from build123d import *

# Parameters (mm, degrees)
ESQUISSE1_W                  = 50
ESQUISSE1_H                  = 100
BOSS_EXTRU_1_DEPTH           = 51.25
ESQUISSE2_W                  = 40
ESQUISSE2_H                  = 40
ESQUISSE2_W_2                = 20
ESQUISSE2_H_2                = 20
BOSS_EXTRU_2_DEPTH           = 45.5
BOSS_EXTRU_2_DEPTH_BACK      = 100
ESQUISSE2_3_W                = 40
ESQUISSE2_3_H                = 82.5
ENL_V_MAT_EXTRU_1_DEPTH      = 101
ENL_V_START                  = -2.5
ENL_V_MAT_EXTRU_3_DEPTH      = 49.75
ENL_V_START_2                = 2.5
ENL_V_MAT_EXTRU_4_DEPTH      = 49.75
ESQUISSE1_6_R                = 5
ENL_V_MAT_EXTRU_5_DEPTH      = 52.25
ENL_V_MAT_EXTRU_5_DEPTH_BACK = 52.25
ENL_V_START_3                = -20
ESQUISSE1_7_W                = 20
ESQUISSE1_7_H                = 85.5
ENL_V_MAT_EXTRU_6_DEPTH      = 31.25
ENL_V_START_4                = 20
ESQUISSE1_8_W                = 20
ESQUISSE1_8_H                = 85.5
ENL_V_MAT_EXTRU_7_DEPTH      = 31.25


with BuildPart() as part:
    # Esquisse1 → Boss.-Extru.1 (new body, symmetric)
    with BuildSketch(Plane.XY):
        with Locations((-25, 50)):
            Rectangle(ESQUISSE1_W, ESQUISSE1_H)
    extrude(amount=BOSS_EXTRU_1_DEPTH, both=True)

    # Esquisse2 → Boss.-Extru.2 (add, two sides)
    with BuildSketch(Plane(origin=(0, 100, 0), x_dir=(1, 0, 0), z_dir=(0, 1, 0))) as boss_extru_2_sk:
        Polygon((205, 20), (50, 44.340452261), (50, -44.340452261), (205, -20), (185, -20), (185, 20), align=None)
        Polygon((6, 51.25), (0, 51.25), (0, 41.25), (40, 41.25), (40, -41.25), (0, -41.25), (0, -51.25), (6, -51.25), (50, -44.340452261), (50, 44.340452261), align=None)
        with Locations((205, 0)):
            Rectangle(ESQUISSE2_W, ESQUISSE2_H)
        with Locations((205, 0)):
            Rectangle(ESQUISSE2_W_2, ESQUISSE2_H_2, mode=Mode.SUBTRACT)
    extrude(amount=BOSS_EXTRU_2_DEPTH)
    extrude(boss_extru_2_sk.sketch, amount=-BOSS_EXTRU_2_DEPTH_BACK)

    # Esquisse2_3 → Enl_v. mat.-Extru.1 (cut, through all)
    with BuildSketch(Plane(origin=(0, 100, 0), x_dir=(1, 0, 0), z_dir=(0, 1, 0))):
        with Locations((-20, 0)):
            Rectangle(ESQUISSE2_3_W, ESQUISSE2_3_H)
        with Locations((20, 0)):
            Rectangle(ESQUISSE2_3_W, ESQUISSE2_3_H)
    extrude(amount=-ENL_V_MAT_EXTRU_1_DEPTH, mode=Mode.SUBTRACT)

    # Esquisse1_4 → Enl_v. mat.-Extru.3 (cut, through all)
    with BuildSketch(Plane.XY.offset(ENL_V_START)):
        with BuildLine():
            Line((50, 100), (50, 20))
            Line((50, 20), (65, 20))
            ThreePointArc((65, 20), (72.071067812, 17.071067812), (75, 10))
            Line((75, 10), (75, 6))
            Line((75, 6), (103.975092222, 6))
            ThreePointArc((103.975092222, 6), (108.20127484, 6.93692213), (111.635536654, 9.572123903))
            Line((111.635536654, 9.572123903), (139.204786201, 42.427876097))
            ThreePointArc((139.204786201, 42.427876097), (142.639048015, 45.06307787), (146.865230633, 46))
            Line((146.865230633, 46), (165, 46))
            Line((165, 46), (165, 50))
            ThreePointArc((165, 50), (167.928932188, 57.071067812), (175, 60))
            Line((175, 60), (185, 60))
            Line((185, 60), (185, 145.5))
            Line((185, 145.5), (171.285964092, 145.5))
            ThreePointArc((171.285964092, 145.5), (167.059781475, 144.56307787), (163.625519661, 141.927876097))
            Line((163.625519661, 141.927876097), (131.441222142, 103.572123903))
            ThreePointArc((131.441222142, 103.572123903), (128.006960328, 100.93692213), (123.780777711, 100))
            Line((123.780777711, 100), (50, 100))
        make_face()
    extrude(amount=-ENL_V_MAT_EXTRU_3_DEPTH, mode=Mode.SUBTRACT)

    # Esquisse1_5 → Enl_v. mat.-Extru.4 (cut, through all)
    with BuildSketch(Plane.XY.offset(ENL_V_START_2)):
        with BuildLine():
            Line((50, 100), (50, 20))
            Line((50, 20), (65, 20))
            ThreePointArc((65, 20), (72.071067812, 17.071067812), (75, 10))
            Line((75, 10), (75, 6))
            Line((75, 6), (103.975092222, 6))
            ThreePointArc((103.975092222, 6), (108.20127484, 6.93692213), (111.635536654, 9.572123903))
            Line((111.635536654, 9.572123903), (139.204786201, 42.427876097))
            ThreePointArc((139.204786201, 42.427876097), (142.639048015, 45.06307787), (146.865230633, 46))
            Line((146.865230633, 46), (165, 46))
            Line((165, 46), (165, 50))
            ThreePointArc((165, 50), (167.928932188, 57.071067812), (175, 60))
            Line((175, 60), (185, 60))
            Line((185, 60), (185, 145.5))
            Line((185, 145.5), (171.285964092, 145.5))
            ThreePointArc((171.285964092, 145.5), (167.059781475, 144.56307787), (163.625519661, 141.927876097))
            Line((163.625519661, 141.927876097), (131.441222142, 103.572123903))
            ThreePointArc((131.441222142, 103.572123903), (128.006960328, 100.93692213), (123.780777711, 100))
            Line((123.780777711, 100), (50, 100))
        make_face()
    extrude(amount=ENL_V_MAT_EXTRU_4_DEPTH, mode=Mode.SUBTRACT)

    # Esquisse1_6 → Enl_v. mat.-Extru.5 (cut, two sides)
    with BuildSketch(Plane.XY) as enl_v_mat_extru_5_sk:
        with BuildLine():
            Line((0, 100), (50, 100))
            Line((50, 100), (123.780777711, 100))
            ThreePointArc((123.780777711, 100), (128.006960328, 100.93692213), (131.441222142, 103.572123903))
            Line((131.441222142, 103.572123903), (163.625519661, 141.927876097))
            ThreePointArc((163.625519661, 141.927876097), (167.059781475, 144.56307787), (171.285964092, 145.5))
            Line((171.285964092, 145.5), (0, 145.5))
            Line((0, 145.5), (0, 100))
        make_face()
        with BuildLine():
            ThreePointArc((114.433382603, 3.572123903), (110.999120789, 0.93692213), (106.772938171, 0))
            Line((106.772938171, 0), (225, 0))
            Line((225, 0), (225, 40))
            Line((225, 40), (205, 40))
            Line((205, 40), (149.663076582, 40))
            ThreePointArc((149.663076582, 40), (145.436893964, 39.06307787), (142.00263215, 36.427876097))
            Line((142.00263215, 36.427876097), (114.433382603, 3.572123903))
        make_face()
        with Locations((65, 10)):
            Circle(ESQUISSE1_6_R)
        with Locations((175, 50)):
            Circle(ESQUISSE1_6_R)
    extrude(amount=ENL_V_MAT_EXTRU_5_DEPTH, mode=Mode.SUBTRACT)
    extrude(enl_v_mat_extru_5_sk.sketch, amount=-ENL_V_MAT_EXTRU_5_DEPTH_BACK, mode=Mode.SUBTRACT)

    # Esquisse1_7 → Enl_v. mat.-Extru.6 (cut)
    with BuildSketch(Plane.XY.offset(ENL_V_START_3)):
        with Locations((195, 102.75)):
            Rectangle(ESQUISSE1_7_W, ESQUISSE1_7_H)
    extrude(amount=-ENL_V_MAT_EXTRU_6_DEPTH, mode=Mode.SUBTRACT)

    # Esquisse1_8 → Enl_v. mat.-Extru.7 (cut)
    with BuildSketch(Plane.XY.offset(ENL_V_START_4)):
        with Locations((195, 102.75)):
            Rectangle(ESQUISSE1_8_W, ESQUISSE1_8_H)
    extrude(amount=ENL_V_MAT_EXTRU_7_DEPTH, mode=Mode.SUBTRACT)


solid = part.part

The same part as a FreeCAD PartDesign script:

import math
import FreeCAD as App
import Part
import Sketcher
Q = App.Units.Quantity


def add_polygon(sketch, points):
    """Adds a closed chain of lines whose ends are joined by coincident constraints."""
    first, n = sketch.GeometryCount, len(points)
    for a, b in zip(points, points[1:] + points[:1]):
        sketch.addGeometry(Part.LineSegment(App.Vector(*a, 0), App.Vector(*b, 0)), False)
    for i in range(n):
        sketch.addConstraint(Sketcher.Constraint("Coincident", first + i, 2, first + (i + 1) % n, 1))

doc = App.newDocument("Part")
params = doc.addObject("Spreadsheet::Sheet", "Params")
for row, (alias, value) in enumerate([
    ("sketch1_width", "50 mm"),
    ("sketch1_height", "100 mm"),
    ("pad1_length", "102.5 mm"),
    ("sketch2_width", "6 mm"),
    ("sketch2_width2", "40 mm"),
    ("sketch2_width3", "20 mm"),
    ("sketch2_height", "10 mm"),
    ("sketch2_height2", "82.5 mm"),
    ("pad2_length", "45.5 mm"),
    ("pad2_length2", "100 mm"),
    ("sketch3_width", "80 mm"),
    ("sketch3_height", "82.5 mm"),
    ("sketch4_radius", "10 mm"),
    ("sketch4_width", "15 mm"),
    ("sketch4_width2", "10 mm"),
    ("sketch4_height", "80 mm"),
    ("sketch4_height2", "4 mm"),
    ("sketch5_radius", "10 mm"),
    ("sketch5_width", "15 mm"),
    ("sketch5_width2", "10 mm"),
    ("sketch5_height", "80 mm"),
    ("sketch5_height2", "4 mm"),
    ("sketch6_diameter", "10 mm"),
    ("sketch6_radius", "10 mm"),
    ("sketch6_height", "40 mm"),
    ("sketch6_height2", "45.5 mm"),
    ("sketch7_width", "20 mm"),
    ("sketch7_height", "85.5 mm"),
    ("pocket5_length", "31.25 mm"),
    ("sketch8_width", "20 mm"),
    ("sketch8_height", "85.5 mm"),
    ("pocket6_length", "31.25 mm"),
], start=1):
    params.set(f"A{row}", alias)
    params.set(f"B{row}", "=" + value)
    params.setAlias(f"B{row}", alias)

body = doc.addObject("PartDesign::Body", "Body")

sketch1 = body.newObject("Sketcher::SketchObject", "Sketch")
sketch1.AttachmentSupport = (doc.getObject("XY_Plane"), [""])
sketch1.MapMode = "FlatFace"
add_polygon(sketch1, [(-50, 100), (-50, 0), (0, 0), (0, 100)])
sketch1.addConstraint([
    Sketcher.Constraint("Vertical", 0),
    Sketcher.Constraint("Horizontal", 1),
    Sketcher.Constraint("Vertical", 2),
    Sketcher.Constraint("Horizontal", 3),
    Sketcher.Constraint("Coincident", 1, 2, -1, 1),
    Sketcher.Constraint("DistanceX", 1, 1, 1, 2, 50.0),
    Sketcher.Constraint("DistanceY", 0, 2, 0, 1, 100.0),
])
sketch1.setExpression("Constraints[9]", "Params.sketch1_width")
sketch1.setExpression("Constraints[10]", "Params.sketch1_height")
pad1 = body.newObject("PartDesign::Pad", "Pad")
pad1.Profile = sketch1
pad1.setExpression("Length", "Params.pad1_length")
pad1.Midplane = True

sketch2 = body.newObject("Sketcher::SketchObject", "Sketch001")
sketch2.AttachmentSupport = (doc.getObject("XZ_Plane"), [""])
sketch2.MapMode = "FlatFace"
sketch2.AttachmentOffset = App.Placement(App.Vector(0, 0, -100), App.Rotation())
add_polygon(sketch2, [(205, -20), (50, -44), (6, -51), (0, -51), (0, -41), (40, -41), (40, 41), (0, 41), (0, 51), (6, 51), (50, 44), (205, 20), (225, 20), (225, -20)])
add_polygon(sketch2, [(215, 10), (195, 10), (195, -10), (215, -10)])
sketch2.addConstraint([
    Sketcher.Constraint("Horizontal", 2),
    Sketcher.Constraint("Vertical", 3),
    Sketcher.Constraint("Horizontal", 4),
    Sketcher.Constraint("Vertical", 5),
    Sketcher.Constraint("Horizontal", 6),
    Sketcher.Constraint("Vertical", 7),
    Sketcher.Constraint("Horizontal", 8),
    Sketcher.Constraint("Horizontal", 11),
    Sketcher.Constraint("Vertical", 12),
    Sketcher.Constraint("Horizontal", 13),
    Sketcher.Constraint("Horizontal", 14),
    Sketcher.Constraint("Vertical", 15),
    Sketcher.Constraint("Horizontal", 16),
    Sketcher.Constraint("Vertical", 17),
    Sketcher.Constraint("Symmetric", 3, 2, 6, 2, -1, 1),
    Sketcher.Constraint("Symmetric", 2, 2, 7, 2, -1),
    Sketcher.Constraint("Symmetric", 0, 2, 9, 2, -1),
    Sketcher.Constraint("Symmetric", 10, 2, 13, 2, -1),
    Sketcher.Constraint("Parallel", 0, 1),
    Sketcher.Constraint("Parallel", 9, 10),
    Sketcher.Constraint("Equal", 13, 14),
    Sketcher.Constraint("Equal", 6, 12),
    Sketcher.Constraint("Equal", 16, 15),
    Sketcher.Constraint("DistanceX", 2, 2, 2, 1, 6.0),
    Sketcher.Constraint("DistanceX", 4, 1, 4, 2, 40.0),
    Sketcher.Constraint("DistanceX", 11, 1, 11, 2, 20.0),
    Sketcher.Constraint("DistanceY", 3, 1, 3, 2, 10.0),
    Sketcher.Constraint("DistanceY", 5, 1, 5, 2, 82.5),
    Sketcher.Constraint("DistanceX", -1, 1, 0, 2, 50.0),
    Sketcher.Constraint("DistanceX", -1, 1, 10, 2, 205.0),
    Sketcher.Constraint("DistanceX", -1, 1, 14, 2, 195.0),
    Sketcher.Constraint("DistanceY", -1, 1, 14, 2, 10.0),
])
sketch2.setExpression("Constraints[41]", "Params.sketch2_width")
sketch2.setExpression("Constraints[42]", "Params.sketch2_width2")
sketch2.setExpression("Constraints[43]", "Params.sketch2_width3")
sketch2.setExpression("Constraints[44]", "Params.sketch2_height")
sketch2.setExpression("Constraints[45]", "Params.sketch2_height2")
pad2 = body.newObject("PartDesign::Pad", "Pad001")
pad2.Profile = sketch2
pad2.Type = "TwoLengths"
pad2.setExpression("Length", "Params.pad2_length")
pad2.setExpression("Length2", "Params.pad2_length2")
pad2.Reversed = True

sketch3 = body.newObject("Sketcher::SketchObject", "Sketch002")
sketch3.AttachmentSupport = (doc.getObject("XZ_Plane"), [""])
sketch3.MapMode = "FlatFace"
sketch3.AttachmentOffset = App.Placement(App.Vector(0, 0, -100), App.Rotation())
add_polygon(sketch3, [(-40, -41), (-40, 41), (40, 41), (40, -41)])
sketch3.addConstraint([
    Sketcher.Constraint("Vertical", 0),
    Sketcher.Constraint("Horizontal", 1),
    Sketcher.Constraint("Vertical", 2),
    Sketcher.Constraint("Horizontal", 3),
    Sketcher.Constraint("Symmetric", 0, 2, 2, 2, -1, 1),
    Sketcher.Constraint("DistanceX", 1, 1, 1, 2, 80.0),
    Sketcher.Constraint("DistanceY", 0, 1, 0, 2, 82.5),
])
sketch3.setExpression("Constraints[9]", "Params.sketch3_width")
sketch3.setExpression("Constraints[10]", "Params.sketch3_height")
pocket1 = body.newObject("PartDesign::Pocket", "Pocket")
pocket1.Profile = sketch3
pocket1.Type = "ThroughAll"
pocket1.Reversed = True

sketch4 = body.newObject("Sketcher::SketchObject", "Sketch003")
sketch4.AttachmentSupport = (doc.getObject("XY_Plane"), [""])
sketch4.MapMode = "FlatFace"
sketch4.AttachmentOffset = App.Placement(App.Vector(0, 0, -2.5), App.Rotation())
sketch4.addGeometry([
    Part.LineSegment(App.Vector(50, 100, 0), App.Vector(50, 20, 0)),
    Part.LineSegment(App.Vector(50, 20, 0), App.Vector(65, 20, 0)),
    Part.ArcOfCircle(Part.Circle(App.Vector(65, 10, 0), App.Vector(0, 0, 1), 10), math.radians(0), math.radians(90)),
    Part.LineSegment(App.Vector(75, 10, 0), App.Vector(75, 6, 0)),
    Part.LineSegment(App.Vector(75, 6, 0), App.Vector(104, 6, 0)),
    Part.ArcOfCircle(Part.Circle(App.Vector(104, 16, 0), App.Vector(0, 0, 1), 10), math.radians(-90), math.radians(-40)),
    Part.LineSegment(App.Vector(111.6, 9.6, 0), App.Vector(139.2, 42.4, 0)),
    Part.ArcOfCircle(Part.Circle(App.Vector(146.9, 36, 0), App.Vector(0, 0, 1), 10), math.radians(90), math.radians(140)),
    Part.LineSegment(App.Vector(146.9, 46, 0), App.Vector(165, 46, 0)),
    Part.LineSegment(App.Vector(165, 46, 0), App.Vector(165, 50, 0)),
    Part.ArcOfCircle(Part.Circle(App.Vector(175, 50, 0), App.Vector(0, 0, 1), 10), math.radians(90), math.radians(180)),
    Part.LineSegment(App.Vector(175, 60, 0), App.Vector(185, 60, 0)),
    Part.LineSegment(App.Vector(185, 60, 0), App.Vector(185, 145.5, 0)),
    Part.LineSegment(App.Vector(185, 145.5, 0), App.Vector(171.3, 145.5, 0)),
    Part.ArcOfCircle(Part.Circle(App.Vector(171.3, 135.5, 0), App.Vector(0, 0, 1), 10), math.radians(90), math.radians(140)),
    Part.LineSegment(App.Vector(163.6, 141.9, 0), App.Vector(131.4, 103.6, 0)),
    Part.ArcOfCircle(Part.Circle(App.Vector(123.8, 110, 0), App.Vector(0, 0, 1), 10), math.radians(-90), math.radians(-40)),
    Part.LineSegment(App.Vector(123.8, 100, 0), App.Vector(50, 100, 0)),
], False)
sketch4.addConstraint([
    Sketcher.Constraint("Coincident", 0, 2, 1, 1),
    Sketcher.Constraint("Tangent", 1, 2, 2, 2),
    Sketcher.Constraint("Tangent", 2, 1, 3, 1),
    Sketcher.Constraint("Coincident", 3, 2, 4, 1),
    Sketcher.Constraint("Tangent", 4, 2, 5, 1),
    Sketcher.Constraint("Tangent", 5, 2, 6, 1),
    Sketcher.Constraint("Tangent", 6, 2, 7, 2),
    Sketcher.Constraint("Tangent", 7, 1, 8, 1),
    Sketcher.Constraint("Coincident", 8, 2, 9, 1),
    Sketcher.Constraint("Tangent", 9, 2, 10, 2),
    Sketcher.Constraint("Tangent", 10, 1, 11, 1),
    Sketcher.Constraint("Coincident", 11, 2, 12, 1),
    Sketcher.Constraint("Coincident", 12, 2, 13, 1),
    Sketcher.Constraint("Tangent", 13, 2, 14, 1),
    Sketcher.Constraint("Tangent", 14, 2, 15, 1),
    Sketcher.Constraint("Tangent", 15, 2, 16, 2),
    Sketcher.Constraint("Tangent", 16, 1, 17, 1),
    Sketcher.Constraint("Coincident", 17, 2, 0, 1),
    Sketcher.Constraint("Vertical", 0),
    Sketcher.Constraint("Horizontal", 1),
    Sketcher.Constraint("Vertical", 3),
    Sketcher.Constraint("Horizontal", 4),
    Sketcher.Constraint("Horizontal", 8),
    Sketcher.Constraint("Vertical", 9),
    Sketcher.Constraint("Horizontal", 11),
    Sketcher.Constraint("Vertical", 12),
    Sketcher.Constraint("Horizontal", 13),
    Sketcher.Constraint("Horizontal", 17),
    Sketcher.Constraint("Equal", 2, 5),
    Sketcher.Constraint("Equal", 5, 7),
    Sketcher.Constraint("Equal", 7, 10),
    Sketcher.Constraint("Equal", 10, 14),
    Sketcher.Constraint("Equal", 14, 16),
    Sketcher.Constraint("Parallel", 6, 15),
    Sketcher.Constraint("Equal", 3, 9),
    Sketcher.Constraint("Radius", 2, 10.0),
    Sketcher.Constraint("DistanceX", 1, 1, 1, 2, 15.0),
    Sketcher.Constraint("DistanceX", 11, 1, 11, 2, 10.0),
    Sketcher.Constraint("DistanceY", 0, 2, 0, 1, 80.0),
    Sketcher.Constraint("DistanceY", 3, 2, 3, 1, 4.0),
    Sketcher.Constraint("Angle", 6, Q("50 deg")),
    Sketcher.Constraint("DistanceY", 12, 1, 12, 2, 85.5),
    Sketcher.Constraint("DistanceX", -1, 1, 2, 3, 65.0),
    Sketcher.Constraint("DistanceY", -1, 1, 2, 3, 10.0),
    Sketcher.Constraint("DistanceY", -1, 1, 7, 3, 36.0),
    Sketcher.Constraint("DistanceX", -1, 1, 10, 3, 175.0),
    Sketcher.Constraint("DistanceX", 8, 1, 8, 2, 18.134769),
    Sketcher.Constraint("DistanceX", 13, 2, 13, 1, 13.714036),
])
sketch4.setExpression("Constraints[35]", "Params.sketch4_radius")
sketch4.setExpression("Constraints[36]", "Params.sketch4_width")
sketch4.setExpression("Constraints[37]", "Params.sketch4_width2")
sketch4.setExpression("Constraints[38]", "Params.sketch4_height")
sketch4.setExpression("Constraints[39]", "Params.sketch4_height2")
pocket2 = body.newObject("PartDesign::Pocket", "Pocket001")
pocket2.Profile = sketch4
pocket2.Type = "ThroughAll"

sketch5 = body.newObject("Sketcher::SketchObject", "Sketch004")
sketch5.AttachmentSupport = (doc.getObject("XY_Plane"), [""])
sketch5.MapMode = "FlatFace"
sketch5.AttachmentOffset = App.Placement(App.Vector(0, 0, 2.5), App.Rotation())
sketch5.addGeometry([
    Part.LineSegment(App.Vector(50, 100, 0), App.Vector(50, 20, 0)),
    Part.LineSegment(App.Vector(50, 20, 0), App.Vector(65, 20, 0)),
    Part.ArcOfCircle(Part.Circle(App.Vector(65, 10, 0), App.Vector(0, 0, 1), 10), math.radians(0), math.radians(90)),
    Part.LineSegment(App.Vector(75, 10, 0), App.Vector(75, 6, 0)),
    Part.LineSegment(App.Vector(75, 6, 0), App.Vector(104, 6, 0)),
    Part.ArcOfCircle(Part.Circle(App.Vector(104, 16, 0), App.Vector(0, 0, 1), 10), math.radians(-90), math.radians(-40)),
    Part.LineSegment(App.Vector(111.6, 9.6, 0), App.Vector(139.2, 42.4, 0)),
    Part.ArcOfCircle(Part.Circle(App.Vector(146.9, 36, 0), App.Vector(0, 0, 1), 10), math.radians(90), math.radians(140)),
    Part.LineSegment(App.Vector(146.9, 46, 0), App.Vector(165, 46, 0)),
    Part.LineSegment(App.Vector(165, 46, 0), App.Vector(165, 50, 0)),
    Part.ArcOfCircle(Part.Circle(App.Vector(175, 50, 0), App.Vector(0, 0, 1), 10), math.radians(90), math.radians(180)),
    Part.LineSegment(App.Vector(175, 60, 0), App.Vector(185, 60, 0)),
    Part.LineSegment(App.Vector(185, 60, 0), App.Vector(185, 145.5, 0)),
    Part.LineSegment(App.Vector(185, 145.5, 0), App.Vector(171.3, 145.5, 0)),
    Part.ArcOfCircle(Part.Circle(App.Vector(171.3, 135.5, 0), App.Vector(0, 0, 1), 10), math.radians(90), math.radians(140)),
    Part.LineSegment(App.Vector(163.6, 141.9, 0), App.Vector(131.4, 103.6, 0)),
    Part.ArcOfCircle(Part.Circle(App.Vector(123.8, 110, 0), App.Vector(0, 0, 1), 10), math.radians(-90), math.radians(-40)),
    Part.LineSegment(App.Vector(123.8, 100, 0), App.Vector(50, 100, 0)),
], False)
sketch5.addConstraint([
    Sketcher.Constraint("Coincident", 0, 2, 1, 1),
    Sketcher.Constraint("Tangent", 1, 2, 2, 2),
    Sketcher.Constraint("Tangent", 2, 1, 3, 1),
    Sketcher.Constraint("Coincident", 3, 2, 4, 1),
    Sketcher.Constraint("Tangent", 4, 2, 5, 1),
    Sketcher.Constraint("Tangent", 5, 2, 6, 1),
    Sketcher.Constraint("Tangent", 6, 2, 7, 2),
    Sketcher.Constraint("Tangent", 7, 1, 8, 1),
    Sketcher.Constraint("Coincident", 8, 2, 9, 1),
    Sketcher.Constraint("Tangent", 9, 2, 10, 2),
    Sketcher.Constraint("Tangent", 10, 1, 11, 1),
    Sketcher.Constraint("Coincident", 11, 2, 12, 1),
    Sketcher.Constraint("Coincident", 12, 2, 13, 1),
    Sketcher.Constraint("Tangent", 13, 2, 14, 1),
    Sketcher.Constraint("Tangent", 14, 2, 15, 1),
    Sketcher.Constraint("Tangent", 15, 2, 16, 2),
    Sketcher.Constraint("Tangent", 16, 1, 17, 1),
    Sketcher.Constraint("Coincident", 17, 2, 0, 1),
    Sketcher.Constraint("Vertical", 0),
    Sketcher.Constraint("Horizontal", 1),
    Sketcher.Constraint("Vertical", 3),
    Sketcher.Constraint("Horizontal", 4),
    Sketcher.Constraint("Horizontal", 8),
    Sketcher.Constraint("Vertical", 9),
    Sketcher.Constraint("Horizontal", 11),
    Sketcher.Constraint("Vertical", 12),
    Sketcher.Constraint("Horizontal", 13),
    Sketcher.Constraint("Horizontal", 17),
    Sketcher.Constraint("Equal", 2, 5),
    Sketcher.Constraint("Equal", 5, 7),
    Sketcher.Constraint("Equal", 7, 10),
    Sketcher.Constraint("Equal", 10, 14),
    Sketcher.Constraint("Equal", 14, 16),
    Sketcher.Constraint("Parallel", 6, 15),
    Sketcher.Constraint("Equal", 3, 9),
    Sketcher.Constraint("Radius", 2, 10.0),
    Sketcher.Constraint("DistanceX", 1, 1, 1, 2, 15.0),
    Sketcher.Constraint("DistanceX", 11, 1, 11, 2, 10.0),
    Sketcher.Constraint("DistanceY", 0, 2, 0, 1, 80.0),
    Sketcher.Constraint("DistanceY", 3, 2, 3, 1, 4.0),
    Sketcher.Constraint("Angle", 6, Q("50 deg")),
    Sketcher.Constraint("DistanceY", 12, 1, 12, 2, 85.5),
    Sketcher.Constraint("DistanceX", -1, 1, 2, 3, 65.0),
    Sketcher.Constraint("DistanceY", -1, 1, 2, 3, 10.0),
    Sketcher.Constraint("DistanceY", -1, 1, 7, 3, 36.0),
    Sketcher.Constraint("DistanceX", -1, 1, 10, 3, 175.0),
    Sketcher.Constraint("DistanceX", 8, 1, 8, 2, 18.134769),
    Sketcher.Constraint("DistanceX", 13, 2, 13, 1, 13.714036),
])
sketch5.setExpression("Constraints[35]", "Params.sketch5_radius")
sketch5.setExpression("Constraints[36]", "Params.sketch5_width")
sketch5.setExpression("Constraints[37]", "Params.sketch5_width2")
sketch5.setExpression("Constraints[38]", "Params.sketch5_height")
sketch5.setExpression("Constraints[39]", "Params.sketch5_height2")
pocket3 = body.newObject("PartDesign::Pocket", "Pocket002")
pocket3.Profile = sketch5
pocket3.Type = "ThroughAll"
pocket3.Reversed = True

sketch6 = body.newObject("Sketcher::SketchObject", "Sketch005")
sketch6.AttachmentSupport = (doc.getObject("XY_Plane"), [""])
sketch6.MapMode = "FlatFace"
sketch6.addGeometry([
    Part.LineSegment(App.Vector(0, 100, 0), App.Vector(124, 100, 0)),
    Part.ArcOfCircle(Part.Circle(App.Vector(124, 110, 0), App.Vector(0, 0, 1), 10), math.radians(-90), math.radians(-40)),
    Part.LineSegment(App.Vector(131, 104, 0), App.Vector(164, 142, 0)),
    Part.ArcOfCircle(Part.Circle(App.Vector(171, 135, 0), App.Vector(0, 0, 1), 10), math.radians(90), math.radians(140)),
    Part.LineSegment(App.Vector(171, 146, 0), App.Vector(0, 146, 0)),
    Part.LineSegment(App.Vector(0, 146, 0), App.Vector(0, 100, 0)),
    Part.ArcOfCircle(Part.Circle(App.Vector(107, 10, 0), App.Vector(0, 0, 1), 10), math.radians(-90), math.radians(-40)),
    Part.LineSegment(App.Vector(107, 0, 0), App.Vector(225, 0, 0)),
    Part.LineSegment(App.Vector(225, 0, 0), App.Vector(225, 40, 0)),
    Part.LineSegment(App.Vector(225, 40, 0), App.Vector(150, 40, 0)),
    Part.ArcOfCircle(Part.Circle(App.Vector(150, 30, 0), App.Vector(0, 0, 1), 10), math.radians(90), math.radians(140)),
    Part.LineSegment(App.Vector(142, 36, 0), App.Vector(114, 4, 0)),
    Part.Circle(App.Vector(65, 10, 0), App.Vector(0, 0, 1), 5),
    Part.Circle(App.Vector(175, 50, 0), App.Vector(0, 0, 1), 5),
], False)
sketch6.addConstraint([
    Sketcher.Constraint("Tangent", 0, 2, 1, 1),
    Sketcher.Constraint("Tangent", 1, 2, 2, 1),
    Sketcher.Constraint("Tangent", 2, 2, 3, 2),
    Sketcher.Constraint("Tangent", 3, 1, 4, 1),
    Sketcher.Constraint("Coincident", 4, 2, 5, 1),
    Sketcher.Constraint("Coincident", 5, 2, 0, 1),
    Sketcher.Constraint("Tangent", 6, 1, 7, 1),
    Sketcher.Constraint("Coincident", 7, 2, 8, 1),
    Sketcher.Constraint("Coincident", 8, 2, 9, 1),
    Sketcher.Constraint("Tangent", 9, 2, 10, 1),
    Sketcher.Constraint("Tangent", 10, 2, 11, 1),
    Sketcher.Constraint("Tangent", 11, 2, 6, 2),
    Sketcher.Constraint("Horizontal", 0),
    Sketcher.Constraint("Horizontal", 4),
    Sketcher.Constraint("Vertical", 5),
    Sketcher.Constraint("Horizontal", 7),
    Sketcher.Constraint("Vertical", 8),
    Sketcher.Constraint("Horizontal", 9),
    Sketcher.Constraint("Equal", 1, 3),
    Sketcher.Constraint("Equal", 3, 6),
    Sketcher.Constraint("Equal", 6, 10),
    Sketcher.Constraint("Equal", 12, 13),
    Sketcher.Constraint("PointOnObject", 4, 2, -2),
    Sketcher.Constraint("PointOnObject", 6, 1, -1),
    Sketcher.Constraint("Parallel", 2, 11),
    Sketcher.Constraint("Horizontal", 6, 3, 12, 3),
    Sketcher.Constraint("Diameter", 12, 10.0),
    Sketcher.Constraint("Radius", 1, 10.0),
    Sketcher.Constraint("DistanceY", 8, 1, 8, 2, 40.0),
    Sketcher.Constraint("Angle", 2, Q("50 deg")),
    Sketcher.Constraint("DistanceY", 5, 2, 5, 1, 45.5),
    Sketcher.Constraint("DistanceY", -1, 1, 1, 3, 110.0),
    Sketcher.Constraint("DistanceX", -1, 1, 12, 3, 65.0),
    Sketcher.Constraint("DistanceX", -1, 1, 13, 3, 175.0),
    Sketcher.Constraint("DistanceY", -1, 1, 13, 3, 50.0),
    Sketcher.Constraint("DistanceX", -1, 1, 7, 2, 225.0),
    Sketcher.Constraint("DistanceX", 7, 1, 7, 2, 118.227062),
    Sketcher.Constraint("DistanceX", 1, 3, 10, 3, 25.882299),
])
sketch6.setExpression("Constraints[26]", "Params.sketch6_diameter")
sketch6.setExpression("Constraints[27]", "Params.sketch6_radius")
sketch6.setExpression("Constraints[28]", "Params.sketch6_height")
sketch6.setExpression("Constraints[30]", "Params.sketch6_height2")
pocket4 = body.newObject("PartDesign::Pocket", "Pocket003")
pocket4.Profile = sketch6
pocket4.Type = "ThroughAll"
pocket4.Midplane = True

sketch7 = body.newObject("Sketcher::SketchObject", "Sketch006")
sketch7.AttachmentSupport = (doc.getObject("XY_Plane"), [""])
sketch7.MapMode = "FlatFace"
sketch7.AttachmentOffset = App.Placement(App.Vector(0, 0, -20), App.Rotation())
add_polygon(sketch7, [(185, 146), (185, 60), (205, 60), (205, 146)])
sketch7.addConstraint([
    Sketcher.Constraint("Vertical", 0),
    Sketcher.Constraint("Horizontal", 1),
    Sketcher.Constraint("Vertical", 2),
    Sketcher.Constraint("Horizontal", 3),
    Sketcher.Constraint("DistanceX", 1, 1, 1, 2, 20.0),
    Sketcher.Constraint("DistanceY", 0, 2, 0, 1, 85.5),
    Sketcher.Constraint("DistanceX", -1, 1, 0, 2, 185.0),
    Sketcher.Constraint("DistanceY", -1, 1, 0, 2, 60.0),
])
sketch7.setExpression("Constraints[8]", "Params.sketch7_width")
sketch7.setExpression("Constraints[9]", "Params.sketch7_height")
pocket5 = body.newObject("PartDesign::Pocket", "Pocket004")
pocket5.Profile = sketch7
pocket5.setExpression("Length", "Params.pocket5_length")

sketch8 = body.newObject("Sketcher::SketchObject", "Sketch007")
sketch8.AttachmentSupport = (doc.getObject("XY_Plane"), [""])
sketch8.MapMode = "FlatFace"
sketch8.AttachmentOffset = App.Placement(App.Vector(0, 0, 20), App.Rotation())
add_polygon(sketch8, [(185, 146), (185, 60), (205, 60), (205, 146)])
sketch8.addConstraint([
    Sketcher.Constraint("Vertical", 0),
    Sketcher.Constraint("Horizontal", 1),
    Sketcher.Constraint("Vertical", 2),
    Sketcher.Constraint("Horizontal", 3),
    Sketcher.Constraint("DistanceX", 1, 1, 1, 2, 20.0),
    Sketcher.Constraint("DistanceY", 0, 2, 0, 1, 85.5),
    Sketcher.Constraint("DistanceX", -1, 1, 0, 2, 185.0),
    Sketcher.Constraint("DistanceY", -1, 1, 0, 2, 60.0),
])
sketch8.setExpression("Constraints[8]", "Params.sketch8_width")
sketch8.setExpression("Constraints[9]", "Params.sketch8_height")
pocket6 = body.newObject("PartDesign::Pocket", "Pocket005")
pocket6.Profile = sketch8
pocket6.setExpression("Length", "Params.pocket6_length")
pocket6.Reversed = True

doc.recompute()
